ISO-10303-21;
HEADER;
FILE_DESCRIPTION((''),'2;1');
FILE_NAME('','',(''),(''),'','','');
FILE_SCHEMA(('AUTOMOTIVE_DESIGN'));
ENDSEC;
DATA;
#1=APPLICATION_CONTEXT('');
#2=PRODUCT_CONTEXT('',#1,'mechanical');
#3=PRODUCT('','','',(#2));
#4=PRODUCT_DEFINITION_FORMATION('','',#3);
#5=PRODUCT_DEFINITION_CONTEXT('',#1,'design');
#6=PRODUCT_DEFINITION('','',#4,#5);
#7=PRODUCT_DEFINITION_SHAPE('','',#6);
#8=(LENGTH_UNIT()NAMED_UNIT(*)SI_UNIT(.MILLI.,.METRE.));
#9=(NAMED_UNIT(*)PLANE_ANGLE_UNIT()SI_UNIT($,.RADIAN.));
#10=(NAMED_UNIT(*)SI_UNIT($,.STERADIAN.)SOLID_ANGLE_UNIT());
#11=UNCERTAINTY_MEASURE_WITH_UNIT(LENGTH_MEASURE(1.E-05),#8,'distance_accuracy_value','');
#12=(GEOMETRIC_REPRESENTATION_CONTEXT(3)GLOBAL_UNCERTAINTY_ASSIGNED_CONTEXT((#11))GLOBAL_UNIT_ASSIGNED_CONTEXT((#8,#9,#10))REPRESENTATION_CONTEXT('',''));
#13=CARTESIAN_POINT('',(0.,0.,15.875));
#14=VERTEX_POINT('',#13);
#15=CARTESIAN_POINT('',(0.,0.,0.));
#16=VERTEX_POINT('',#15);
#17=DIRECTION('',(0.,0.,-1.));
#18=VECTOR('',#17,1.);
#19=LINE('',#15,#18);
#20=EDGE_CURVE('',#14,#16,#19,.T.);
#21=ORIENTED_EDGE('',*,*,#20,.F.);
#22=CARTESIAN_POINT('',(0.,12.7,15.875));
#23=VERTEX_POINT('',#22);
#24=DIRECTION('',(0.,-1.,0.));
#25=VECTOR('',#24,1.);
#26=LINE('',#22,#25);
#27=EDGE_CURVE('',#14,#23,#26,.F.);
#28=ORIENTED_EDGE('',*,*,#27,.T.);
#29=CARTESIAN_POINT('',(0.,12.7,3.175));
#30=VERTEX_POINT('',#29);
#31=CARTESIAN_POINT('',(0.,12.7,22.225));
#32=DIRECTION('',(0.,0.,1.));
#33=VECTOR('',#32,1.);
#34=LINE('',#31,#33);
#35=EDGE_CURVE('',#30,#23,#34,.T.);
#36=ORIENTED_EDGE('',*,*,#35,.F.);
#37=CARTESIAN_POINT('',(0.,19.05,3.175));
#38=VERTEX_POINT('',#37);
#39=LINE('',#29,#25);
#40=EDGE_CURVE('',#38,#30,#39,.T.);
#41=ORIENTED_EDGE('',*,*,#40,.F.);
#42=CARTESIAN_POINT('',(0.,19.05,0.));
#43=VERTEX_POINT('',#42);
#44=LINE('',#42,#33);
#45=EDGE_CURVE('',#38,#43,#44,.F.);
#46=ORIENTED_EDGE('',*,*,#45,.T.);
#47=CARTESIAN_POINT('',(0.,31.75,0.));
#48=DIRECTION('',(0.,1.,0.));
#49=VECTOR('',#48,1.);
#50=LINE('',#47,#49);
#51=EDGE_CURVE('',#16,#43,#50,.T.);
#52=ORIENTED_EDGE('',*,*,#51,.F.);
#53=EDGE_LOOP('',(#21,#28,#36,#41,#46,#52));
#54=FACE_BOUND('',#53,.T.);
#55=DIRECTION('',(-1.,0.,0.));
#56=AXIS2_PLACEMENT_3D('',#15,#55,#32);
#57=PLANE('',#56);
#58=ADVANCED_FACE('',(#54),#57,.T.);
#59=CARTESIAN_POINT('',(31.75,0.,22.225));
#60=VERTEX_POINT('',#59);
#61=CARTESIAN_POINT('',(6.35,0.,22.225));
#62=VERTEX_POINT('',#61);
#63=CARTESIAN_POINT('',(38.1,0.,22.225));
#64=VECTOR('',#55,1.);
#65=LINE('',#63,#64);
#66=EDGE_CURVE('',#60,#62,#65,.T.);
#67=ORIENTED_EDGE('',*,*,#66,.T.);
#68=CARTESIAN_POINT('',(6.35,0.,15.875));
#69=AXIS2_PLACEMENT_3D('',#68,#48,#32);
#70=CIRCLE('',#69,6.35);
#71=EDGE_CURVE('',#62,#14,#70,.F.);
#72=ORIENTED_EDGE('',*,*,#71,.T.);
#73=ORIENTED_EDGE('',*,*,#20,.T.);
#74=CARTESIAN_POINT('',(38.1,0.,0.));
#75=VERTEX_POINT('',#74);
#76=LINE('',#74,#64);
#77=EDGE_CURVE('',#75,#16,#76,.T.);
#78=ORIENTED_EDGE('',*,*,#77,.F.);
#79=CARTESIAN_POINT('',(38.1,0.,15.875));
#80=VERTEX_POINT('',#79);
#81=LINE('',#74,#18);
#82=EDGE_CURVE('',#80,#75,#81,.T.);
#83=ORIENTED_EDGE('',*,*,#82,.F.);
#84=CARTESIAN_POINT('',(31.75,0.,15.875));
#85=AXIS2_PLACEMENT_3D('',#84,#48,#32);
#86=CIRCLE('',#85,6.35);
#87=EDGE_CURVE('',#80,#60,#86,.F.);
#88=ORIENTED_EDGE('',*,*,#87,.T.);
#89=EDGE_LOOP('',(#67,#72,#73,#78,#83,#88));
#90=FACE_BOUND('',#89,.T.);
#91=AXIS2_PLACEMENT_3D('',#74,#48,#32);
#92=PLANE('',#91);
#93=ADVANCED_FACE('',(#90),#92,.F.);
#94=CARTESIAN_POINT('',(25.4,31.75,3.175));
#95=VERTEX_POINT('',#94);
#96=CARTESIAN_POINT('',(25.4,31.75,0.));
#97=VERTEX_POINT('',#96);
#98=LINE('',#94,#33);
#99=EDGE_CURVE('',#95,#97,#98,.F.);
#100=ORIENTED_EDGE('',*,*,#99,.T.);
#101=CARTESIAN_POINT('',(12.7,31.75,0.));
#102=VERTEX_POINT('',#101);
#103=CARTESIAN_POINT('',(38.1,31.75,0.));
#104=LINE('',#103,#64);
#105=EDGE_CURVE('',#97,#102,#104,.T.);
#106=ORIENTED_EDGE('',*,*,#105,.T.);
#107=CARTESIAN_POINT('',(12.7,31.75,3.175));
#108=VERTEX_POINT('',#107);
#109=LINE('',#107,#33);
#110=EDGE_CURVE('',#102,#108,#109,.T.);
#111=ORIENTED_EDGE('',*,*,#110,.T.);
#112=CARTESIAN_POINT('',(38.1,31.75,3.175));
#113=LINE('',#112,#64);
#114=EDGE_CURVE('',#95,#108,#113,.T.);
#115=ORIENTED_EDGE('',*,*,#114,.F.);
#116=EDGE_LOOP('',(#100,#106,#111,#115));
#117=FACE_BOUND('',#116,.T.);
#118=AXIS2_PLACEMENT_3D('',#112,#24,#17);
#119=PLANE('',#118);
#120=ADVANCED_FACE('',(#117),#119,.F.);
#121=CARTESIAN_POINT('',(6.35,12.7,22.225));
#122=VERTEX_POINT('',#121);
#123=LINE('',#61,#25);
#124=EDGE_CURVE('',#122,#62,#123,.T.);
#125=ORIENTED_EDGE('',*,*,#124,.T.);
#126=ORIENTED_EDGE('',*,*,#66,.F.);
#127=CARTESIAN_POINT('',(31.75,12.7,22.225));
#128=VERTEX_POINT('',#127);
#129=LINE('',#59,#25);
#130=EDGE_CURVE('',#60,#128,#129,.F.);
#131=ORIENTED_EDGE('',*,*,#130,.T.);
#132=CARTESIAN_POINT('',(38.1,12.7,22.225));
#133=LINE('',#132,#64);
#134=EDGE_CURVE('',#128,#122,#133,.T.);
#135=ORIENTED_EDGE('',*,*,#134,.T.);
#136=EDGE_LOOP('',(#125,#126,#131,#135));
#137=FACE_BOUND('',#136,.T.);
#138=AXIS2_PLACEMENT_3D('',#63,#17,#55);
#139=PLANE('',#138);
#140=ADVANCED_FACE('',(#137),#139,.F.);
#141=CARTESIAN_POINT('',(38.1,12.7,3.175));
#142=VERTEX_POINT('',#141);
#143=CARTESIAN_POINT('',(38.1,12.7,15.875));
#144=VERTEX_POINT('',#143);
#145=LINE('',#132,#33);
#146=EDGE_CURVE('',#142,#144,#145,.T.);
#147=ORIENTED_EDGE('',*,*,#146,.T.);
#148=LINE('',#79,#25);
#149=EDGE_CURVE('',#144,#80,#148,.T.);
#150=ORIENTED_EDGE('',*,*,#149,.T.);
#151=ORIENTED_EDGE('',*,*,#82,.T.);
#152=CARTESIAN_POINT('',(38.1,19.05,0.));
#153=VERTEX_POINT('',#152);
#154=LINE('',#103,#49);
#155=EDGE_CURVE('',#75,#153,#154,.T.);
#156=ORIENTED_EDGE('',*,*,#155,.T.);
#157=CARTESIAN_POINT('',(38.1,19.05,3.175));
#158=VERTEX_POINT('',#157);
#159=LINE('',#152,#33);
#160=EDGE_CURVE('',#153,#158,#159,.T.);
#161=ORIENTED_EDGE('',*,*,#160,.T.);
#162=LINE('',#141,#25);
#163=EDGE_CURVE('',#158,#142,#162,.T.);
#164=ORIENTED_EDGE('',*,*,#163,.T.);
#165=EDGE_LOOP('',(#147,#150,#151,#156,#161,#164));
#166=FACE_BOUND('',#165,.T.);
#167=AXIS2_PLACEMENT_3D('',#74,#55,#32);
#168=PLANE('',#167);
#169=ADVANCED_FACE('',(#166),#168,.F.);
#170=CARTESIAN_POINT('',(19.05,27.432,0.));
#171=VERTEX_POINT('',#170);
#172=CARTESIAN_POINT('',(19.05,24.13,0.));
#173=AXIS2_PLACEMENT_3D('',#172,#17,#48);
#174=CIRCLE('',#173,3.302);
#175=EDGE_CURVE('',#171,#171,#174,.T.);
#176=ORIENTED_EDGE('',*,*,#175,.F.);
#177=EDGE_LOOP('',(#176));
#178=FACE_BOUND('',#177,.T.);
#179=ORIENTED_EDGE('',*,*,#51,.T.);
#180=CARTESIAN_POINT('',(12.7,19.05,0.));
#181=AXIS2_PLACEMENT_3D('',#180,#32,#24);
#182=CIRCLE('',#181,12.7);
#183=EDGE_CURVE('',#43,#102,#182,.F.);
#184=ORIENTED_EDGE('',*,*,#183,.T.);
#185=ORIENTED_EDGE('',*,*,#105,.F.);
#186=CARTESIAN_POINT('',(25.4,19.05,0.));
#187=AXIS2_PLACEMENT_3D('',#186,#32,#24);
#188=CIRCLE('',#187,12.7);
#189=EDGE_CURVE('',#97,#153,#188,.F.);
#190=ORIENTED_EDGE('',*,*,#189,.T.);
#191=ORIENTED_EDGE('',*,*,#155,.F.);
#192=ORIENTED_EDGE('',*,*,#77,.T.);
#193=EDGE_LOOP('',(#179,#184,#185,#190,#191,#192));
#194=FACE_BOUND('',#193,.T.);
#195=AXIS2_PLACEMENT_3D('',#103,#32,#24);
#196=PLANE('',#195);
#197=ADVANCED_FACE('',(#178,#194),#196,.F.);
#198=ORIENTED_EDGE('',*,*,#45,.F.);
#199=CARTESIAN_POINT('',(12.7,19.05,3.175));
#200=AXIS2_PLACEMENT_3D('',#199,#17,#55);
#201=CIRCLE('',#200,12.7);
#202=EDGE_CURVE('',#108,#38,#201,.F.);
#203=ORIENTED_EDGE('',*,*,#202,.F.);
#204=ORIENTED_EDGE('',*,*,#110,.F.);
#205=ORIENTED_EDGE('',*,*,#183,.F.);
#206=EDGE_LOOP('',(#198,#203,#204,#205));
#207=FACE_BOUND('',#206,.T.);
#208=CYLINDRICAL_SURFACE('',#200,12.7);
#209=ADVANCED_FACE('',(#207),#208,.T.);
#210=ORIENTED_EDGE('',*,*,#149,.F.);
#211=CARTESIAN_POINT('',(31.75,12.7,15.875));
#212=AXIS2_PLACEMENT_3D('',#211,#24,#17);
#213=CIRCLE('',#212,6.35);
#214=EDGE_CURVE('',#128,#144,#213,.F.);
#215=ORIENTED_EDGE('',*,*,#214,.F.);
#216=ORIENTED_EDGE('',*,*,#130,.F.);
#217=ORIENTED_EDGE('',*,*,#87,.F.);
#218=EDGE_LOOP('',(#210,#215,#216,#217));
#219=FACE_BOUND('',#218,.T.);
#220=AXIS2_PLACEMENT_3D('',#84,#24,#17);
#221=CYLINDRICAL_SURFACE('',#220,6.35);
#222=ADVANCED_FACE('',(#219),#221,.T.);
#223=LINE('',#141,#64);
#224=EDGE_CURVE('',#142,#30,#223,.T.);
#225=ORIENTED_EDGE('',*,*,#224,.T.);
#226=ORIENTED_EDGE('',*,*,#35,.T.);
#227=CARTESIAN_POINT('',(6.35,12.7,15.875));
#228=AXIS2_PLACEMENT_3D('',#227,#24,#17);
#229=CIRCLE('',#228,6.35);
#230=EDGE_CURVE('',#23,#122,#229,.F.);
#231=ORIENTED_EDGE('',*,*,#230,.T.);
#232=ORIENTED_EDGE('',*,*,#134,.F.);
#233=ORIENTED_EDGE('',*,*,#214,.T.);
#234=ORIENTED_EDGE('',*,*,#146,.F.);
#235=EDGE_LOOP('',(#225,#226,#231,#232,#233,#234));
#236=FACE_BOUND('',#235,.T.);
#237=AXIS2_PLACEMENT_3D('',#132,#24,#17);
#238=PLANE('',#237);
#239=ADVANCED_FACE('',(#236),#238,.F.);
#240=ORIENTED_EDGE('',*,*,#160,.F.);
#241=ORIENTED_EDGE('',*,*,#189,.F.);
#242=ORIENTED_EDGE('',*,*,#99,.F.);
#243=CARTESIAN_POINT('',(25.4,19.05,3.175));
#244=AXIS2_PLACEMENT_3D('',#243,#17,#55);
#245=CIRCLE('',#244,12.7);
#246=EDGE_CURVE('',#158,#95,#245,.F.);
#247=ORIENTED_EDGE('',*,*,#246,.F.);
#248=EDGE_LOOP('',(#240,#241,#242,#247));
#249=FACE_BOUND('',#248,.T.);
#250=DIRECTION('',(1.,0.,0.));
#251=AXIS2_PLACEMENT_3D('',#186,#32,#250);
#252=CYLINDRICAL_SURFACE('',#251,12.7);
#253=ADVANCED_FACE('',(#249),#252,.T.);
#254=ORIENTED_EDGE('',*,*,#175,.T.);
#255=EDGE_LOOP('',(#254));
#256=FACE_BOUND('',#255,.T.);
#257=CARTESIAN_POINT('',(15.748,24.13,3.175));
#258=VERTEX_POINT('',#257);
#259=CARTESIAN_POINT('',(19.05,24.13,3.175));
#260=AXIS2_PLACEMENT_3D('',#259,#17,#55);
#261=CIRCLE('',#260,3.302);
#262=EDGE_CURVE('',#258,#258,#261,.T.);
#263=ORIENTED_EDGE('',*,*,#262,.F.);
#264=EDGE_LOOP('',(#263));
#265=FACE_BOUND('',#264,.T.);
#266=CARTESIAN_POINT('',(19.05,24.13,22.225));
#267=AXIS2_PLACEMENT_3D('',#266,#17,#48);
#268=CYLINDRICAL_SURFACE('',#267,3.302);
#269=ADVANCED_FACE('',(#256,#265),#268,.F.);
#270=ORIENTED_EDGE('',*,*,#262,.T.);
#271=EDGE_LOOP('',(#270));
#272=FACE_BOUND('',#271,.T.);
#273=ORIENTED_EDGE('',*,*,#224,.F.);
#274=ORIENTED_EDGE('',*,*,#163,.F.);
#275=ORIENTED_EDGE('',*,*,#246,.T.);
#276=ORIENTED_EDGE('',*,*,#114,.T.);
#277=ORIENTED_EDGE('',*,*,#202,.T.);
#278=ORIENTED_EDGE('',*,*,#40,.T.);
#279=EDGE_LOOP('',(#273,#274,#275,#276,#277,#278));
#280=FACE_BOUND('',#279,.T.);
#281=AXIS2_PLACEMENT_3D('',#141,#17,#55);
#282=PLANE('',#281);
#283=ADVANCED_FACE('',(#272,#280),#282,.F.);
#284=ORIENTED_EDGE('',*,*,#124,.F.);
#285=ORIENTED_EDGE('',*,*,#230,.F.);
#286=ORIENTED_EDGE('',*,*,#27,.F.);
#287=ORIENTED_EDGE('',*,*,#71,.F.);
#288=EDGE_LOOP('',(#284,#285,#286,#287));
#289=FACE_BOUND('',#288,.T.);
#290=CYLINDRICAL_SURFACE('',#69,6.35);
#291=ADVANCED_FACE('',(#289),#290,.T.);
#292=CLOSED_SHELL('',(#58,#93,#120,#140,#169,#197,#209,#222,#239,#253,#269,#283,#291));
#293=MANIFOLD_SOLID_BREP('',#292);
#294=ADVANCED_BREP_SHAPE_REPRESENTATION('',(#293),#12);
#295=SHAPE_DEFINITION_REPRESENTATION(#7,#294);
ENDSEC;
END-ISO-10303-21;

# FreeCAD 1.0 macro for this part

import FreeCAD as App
import Part
import Sketcher
Q = App.Units.Quantity


def edges_at(feature, points):
    """Names of the edges that pass closest to the given points."""
    edges = feature.Shape.Edges
    near = lambda p: min(range(len(edges)), key=lambda i: edges[i].distToShape(Part.Vertex(*p))[0])
    return sorted({f"Edge{near(p) + 1}" for p in points})


def add_polygon(sketch, points):
    """Adds a closed chain of lines whose ends are joined by coincident constraints."""
    first, n = sketch.GeometryCount, len(points)
    for a, b in zip(points, points[1:] + points[:1]):
        sketch.addGeometry(Part.LineSegment(App.Vector(*a, 0), App.Vector(*b, 0)), False)
    for i in range(n):
        sketch.addConstraint(Sketcher.Constraint("Coincident", first + i, 2, first + (i + 1) % n, 1))

doc = App.newDocument("Part")
params = doc.addObject("Spreadsheet::Sheet", "Params")
for row, (alias, value) in enumerate([
    ("sketch1_width", "0.5 in"),
    ("sketch1_width2", "1.25 in"),
    ("sketch1_height", "0.875 in"),
    ("pad1_length", "1.5 in"),
    ("sketch2_diameter", "0.26 in"),
    ("fillet_radius", "0.25 in"),
    ("fillet2_radius", "0.5 in"),
], start=1):
    params.set(f"A{row}", alias)
    params.set(f"B{row}", "=" + value)
    params.setAlias(f"B{row}", alias)

body = doc.addObject("PartDesign::Body", "Body")

# Sketch on YZ plane
sketch1 = doc.addObject("Sketcher::SketchObject", "Sketch")
body.addObject(sketch1)
sketch1.AttachmentSupport = (doc.YZ_Plane, [""])
sketch1.MapMode = "FlatFace"
add_polygon(sketch1, [(0, 22.225), (0, 0), (31.75, 0), (31.75, 3.175), (12.7, 3.175), (12.7, 22.225)])  # lines 0-5
sketch1.addConstraint([
    Sketcher.Constraint("Vertical", 0),
    Sketcher.Constraint("Horizontal", 1),
    Sketcher.Constraint("Vertical", 2),
    Sketcher.Constraint("Horizontal", 3),
    Sketcher.Constraint("Vertical", 4),
    Sketcher.Constraint("Horizontal", 5),
    Sketcher.Constraint("Coincident", 0, 2, -1, 1),
    Sketcher.Constraint("Equal", 3, 4),
    Sketcher.Constraint("DistanceX", 5, 2, 5, 1, Q("0.5 in")),
    Sketcher.Constraint("DistanceX", 1, 1, 1, 2, Q("1.25 in")),
    Sketcher.Constraint("DistanceY", 0, 2, 0, 1, Q("0.875 in")),
])
sketch1.setExpression("Constraints[14]", "Params.sketch1_width")
sketch1.setExpression("Constraints[15]", "Params.sketch1_width2")
sketch1.setExpression("Constraints[16]", "Params.sketch1_height")
pad1 = doc.addObject("PartDesign::Pad", "Pad")
body.addObject(pad1)
pad1.Profile = sketch1
pad1.setExpression("Length", "Params.pad1_length")

# Sketch on XY plane
sketch2 = doc.addObject("Sketcher::SketchObject", "Sketch001")
body.addObject(sketch2)
sketch2.AttachmentSupport = (doc.XY_Plane, [""])
sketch2.MapMode = "FlatFace"
sketch2.addGeometry(Part.Circle(App.Vector(19.05, 24.13, 0), App.Vector(0, 0, 1), 3.302), False)
sketch2.addConstraint([
    Sketcher.Constraint("Diameter", 0, Q("0.26 in")),
    Sketcher.Constraint("DistanceX", -1, 1, 0, 3, Q("0.75 in")),
    Sketcher.Constraint("DistanceY", -1, 1, 0, 3, Q("0.95 in")),
])
sketch2.setExpression("Constraints[0]", "Params.sketch2_diameter")
pocket1 = doc.addObject("PartDesign::Pocket", "Pocket")
body.addObject(pocket1)
pocket1.Profile = sketch2
pocket1.Type = "ThroughAll"
pocket1.Reversed = True
doc.recompute()

fillet = doc.addObject("PartDesign::Fillet", "Fillet")
body.addObject(fillet)
fillet.Base = (pocket1, edges_at(pocket1, [(38.1, 6.35, 22.225), (0, 6.35, 22.225)]))
fillet.setExpression("Radius", "Params.fillet_radius")
doc.recompute()

fillet2 = doc.addObject("PartDesign::Fillet", "Fillet001")
body.addObject(fillet2)
fillet2.Base = (fillet, edges_at(fillet, [(0, 31.75, 1.587), (38.1, 31.75, 1.587)]))
fillet2.setExpression("Radius", "Params.fillet2_radius")

doc.recompute()
